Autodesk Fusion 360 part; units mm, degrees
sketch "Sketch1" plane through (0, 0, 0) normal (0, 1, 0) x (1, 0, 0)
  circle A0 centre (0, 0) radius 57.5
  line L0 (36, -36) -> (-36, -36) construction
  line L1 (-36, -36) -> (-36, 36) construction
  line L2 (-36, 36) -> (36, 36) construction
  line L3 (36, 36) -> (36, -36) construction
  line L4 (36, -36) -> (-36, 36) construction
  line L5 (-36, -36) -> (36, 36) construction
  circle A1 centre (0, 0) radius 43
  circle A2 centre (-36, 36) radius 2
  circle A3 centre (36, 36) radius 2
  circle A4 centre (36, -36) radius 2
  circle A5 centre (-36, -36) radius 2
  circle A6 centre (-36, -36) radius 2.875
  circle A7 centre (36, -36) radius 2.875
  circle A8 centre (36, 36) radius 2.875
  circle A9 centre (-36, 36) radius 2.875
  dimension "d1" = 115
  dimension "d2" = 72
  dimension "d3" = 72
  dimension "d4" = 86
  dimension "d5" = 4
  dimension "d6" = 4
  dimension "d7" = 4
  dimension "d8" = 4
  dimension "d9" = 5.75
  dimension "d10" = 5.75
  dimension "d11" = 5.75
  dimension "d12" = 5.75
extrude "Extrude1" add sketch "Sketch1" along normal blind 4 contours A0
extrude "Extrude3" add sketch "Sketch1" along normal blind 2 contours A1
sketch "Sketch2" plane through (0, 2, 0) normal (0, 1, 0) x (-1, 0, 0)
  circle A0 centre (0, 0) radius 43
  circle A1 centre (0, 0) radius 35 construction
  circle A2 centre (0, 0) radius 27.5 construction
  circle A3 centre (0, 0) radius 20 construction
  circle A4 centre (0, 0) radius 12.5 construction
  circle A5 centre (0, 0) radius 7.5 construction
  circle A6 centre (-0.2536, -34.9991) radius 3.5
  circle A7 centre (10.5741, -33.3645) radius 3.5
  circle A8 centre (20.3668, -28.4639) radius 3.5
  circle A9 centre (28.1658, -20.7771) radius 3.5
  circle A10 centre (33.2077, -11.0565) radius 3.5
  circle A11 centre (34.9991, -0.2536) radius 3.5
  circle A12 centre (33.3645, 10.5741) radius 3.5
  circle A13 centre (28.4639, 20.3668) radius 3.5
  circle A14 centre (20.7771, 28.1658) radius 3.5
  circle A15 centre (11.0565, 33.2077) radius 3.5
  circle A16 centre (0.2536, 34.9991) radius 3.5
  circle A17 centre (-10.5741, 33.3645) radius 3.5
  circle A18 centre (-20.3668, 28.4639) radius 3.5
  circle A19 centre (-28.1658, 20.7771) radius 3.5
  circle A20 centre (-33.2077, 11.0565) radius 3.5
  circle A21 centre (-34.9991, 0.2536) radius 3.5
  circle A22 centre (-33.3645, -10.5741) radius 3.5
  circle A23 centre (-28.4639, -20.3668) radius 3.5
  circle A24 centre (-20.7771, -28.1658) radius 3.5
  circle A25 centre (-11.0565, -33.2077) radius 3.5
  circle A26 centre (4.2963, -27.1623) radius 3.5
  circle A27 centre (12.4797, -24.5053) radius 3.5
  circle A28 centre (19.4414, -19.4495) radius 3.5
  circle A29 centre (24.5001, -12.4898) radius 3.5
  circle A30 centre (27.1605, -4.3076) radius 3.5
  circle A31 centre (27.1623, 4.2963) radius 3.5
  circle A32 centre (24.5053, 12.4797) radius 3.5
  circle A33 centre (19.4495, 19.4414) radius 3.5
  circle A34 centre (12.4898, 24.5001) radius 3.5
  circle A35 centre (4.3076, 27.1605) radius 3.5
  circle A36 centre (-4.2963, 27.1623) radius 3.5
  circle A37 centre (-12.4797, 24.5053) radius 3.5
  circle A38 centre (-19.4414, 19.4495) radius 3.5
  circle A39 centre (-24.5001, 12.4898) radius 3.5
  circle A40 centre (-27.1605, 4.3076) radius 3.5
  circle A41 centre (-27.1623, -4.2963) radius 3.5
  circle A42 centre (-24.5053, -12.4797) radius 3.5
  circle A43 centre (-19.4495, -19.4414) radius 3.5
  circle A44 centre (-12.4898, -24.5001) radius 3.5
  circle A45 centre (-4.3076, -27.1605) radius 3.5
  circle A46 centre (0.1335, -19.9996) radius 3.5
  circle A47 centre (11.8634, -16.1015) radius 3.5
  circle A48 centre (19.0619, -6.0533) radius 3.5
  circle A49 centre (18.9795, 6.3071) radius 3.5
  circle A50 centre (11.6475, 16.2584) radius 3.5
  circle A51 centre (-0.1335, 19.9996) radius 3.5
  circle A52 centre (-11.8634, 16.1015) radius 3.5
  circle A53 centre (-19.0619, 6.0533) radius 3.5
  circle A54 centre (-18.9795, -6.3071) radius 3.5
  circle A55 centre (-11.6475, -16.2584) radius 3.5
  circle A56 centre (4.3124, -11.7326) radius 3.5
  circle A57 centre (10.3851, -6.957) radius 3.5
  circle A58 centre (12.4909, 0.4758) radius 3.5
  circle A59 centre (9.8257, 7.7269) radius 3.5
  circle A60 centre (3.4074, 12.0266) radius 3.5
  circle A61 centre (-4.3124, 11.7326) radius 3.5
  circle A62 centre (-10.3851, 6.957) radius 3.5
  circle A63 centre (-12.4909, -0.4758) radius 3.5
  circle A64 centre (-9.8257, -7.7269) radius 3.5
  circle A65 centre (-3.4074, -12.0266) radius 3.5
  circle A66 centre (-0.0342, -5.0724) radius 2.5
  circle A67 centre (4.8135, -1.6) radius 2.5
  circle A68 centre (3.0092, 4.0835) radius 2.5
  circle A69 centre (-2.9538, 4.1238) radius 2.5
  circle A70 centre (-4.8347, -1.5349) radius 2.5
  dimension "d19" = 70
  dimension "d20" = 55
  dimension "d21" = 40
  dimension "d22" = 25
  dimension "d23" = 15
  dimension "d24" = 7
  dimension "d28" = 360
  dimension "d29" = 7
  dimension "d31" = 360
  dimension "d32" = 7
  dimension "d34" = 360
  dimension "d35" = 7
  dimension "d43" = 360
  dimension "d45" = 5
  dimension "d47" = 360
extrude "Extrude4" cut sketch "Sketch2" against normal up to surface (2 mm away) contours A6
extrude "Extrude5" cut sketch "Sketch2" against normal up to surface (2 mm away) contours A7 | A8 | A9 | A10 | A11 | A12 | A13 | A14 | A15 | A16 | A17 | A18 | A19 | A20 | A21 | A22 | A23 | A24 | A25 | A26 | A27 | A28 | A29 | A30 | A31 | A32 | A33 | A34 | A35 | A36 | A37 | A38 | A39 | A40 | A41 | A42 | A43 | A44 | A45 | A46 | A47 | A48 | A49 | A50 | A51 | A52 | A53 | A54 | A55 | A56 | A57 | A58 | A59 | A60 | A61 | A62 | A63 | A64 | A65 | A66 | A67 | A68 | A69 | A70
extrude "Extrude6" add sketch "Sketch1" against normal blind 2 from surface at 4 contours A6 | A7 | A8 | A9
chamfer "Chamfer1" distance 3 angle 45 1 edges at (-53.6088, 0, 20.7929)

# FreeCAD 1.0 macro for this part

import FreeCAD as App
import Part
import Sketcher


def edges_at(feature, points):
    """Names of the edges that pass closest to the given points."""
    edges = feature.Shape.Edges
    near = lambda p: min(range(len(edges)), key=lambda i: edges[i].distToShape(Part.Vertex(*p))[0])
    return sorted({f"Edge{near(p) + 1}" for p in points})

doc = App.newDocument("Part")
body = doc.addObject("PartDesign::Body", "Body")

# Sketch on XZ plane
sketch1 = body.newObject("Sketcher::SketchObject", "Sketch")
sketch1.AttachmentSupport = (doc.getObject("XZ_Plane"), [""])
sketch1.MapMode = "FlatFace"
sketch1.addGeometry(Part.Circle(App.Vector(0, 0, 0), App.Vector(0, 0, 1), 57.5), False)
sketch1.addGeometry(Part.Circle(App.Vector(-36, 36, 0), App.Vector(0, 0, 1), 2.875), False)
sketch1.addGeometry(Part.Circle(App.Vector(36, 36, 0), App.Vector(0, 0, 1), 2.875), False)
sketch1.addGeometry(Part.Circle(App.Vector(-36, -36, 0), App.Vector(0, 0, 1), 2.875), False)
sketch1.addGeometry(Part.Circle(App.Vector(0, 0, 0), App.Vector(0, 0, 1), 43), False)
sketch1.addGeometry(Part.Circle(App.Vector(36, -36, 0), App.Vector(0, 0, 1), 2.875), False)
sketch1.addConstraint(Sketcher.Constraint("Coincident", 0, 3, -1, 1))
sketch1.addConstraint(Sketcher.Constraint("Coincident", 4, 3, -1, 1))
sketch1.addConstraint(Sketcher.Constraint("Equal", 1, 2))
sketch1.addConstraint(Sketcher.Constraint("Equal", 2, 3))
sketch1.addConstraint(Sketcher.Constraint("Equal", 3, 5))
sketch1.addConstraint(Sketcher.Constraint("Symmetric", 2, 3, 3, 3, -1, 1))
sketch1.addConstraint(Sketcher.Constraint("Symmetric", 1, 3, 5, 3, -1, 1))
sketch1.addConstraint(Sketcher.Constraint("Symmetric", 1, 3, 2, 3, -2))
sketch1.addConstraint(Sketcher.Constraint("Diameter", 0, 115.0))
sketch1.addConstraint(Sketcher.Constraint("Diameter", 4, 86.0))
sketch1.addConstraint(Sketcher.Constraint("Diameter", 1, 5.75))
sketch1.addConstraint(Sketcher.Constraint("DistanceX", 1, 3, 2, 3, 72.0))
sketch1.addConstraint(Sketcher.Constraint("DistanceY", 3, 3, 1, 3, 72.0))
pad1 = body.newObject("PartDesign::Pad", "Pad")
pad1.Profile = sketch1
pad1.Length = 4
pad1.Reversed = True

# Sketch on XZ plane
sketch2 = body.newObject("Sketcher::SketchObject", "Sketch001")
sketch2.AttachmentSupport = (doc.getObject("XZ_Plane"), [""])
sketch2.MapMode = "FlatFace"
sketch2.addGeometry(Part.Circle(App.Vector(0, 0, 0), App.Vector(0, 0, 1), 43), False)
sketch2.addConstraint(Sketcher.Constraint("Coincident", 0, 3, -1, 1))
sketch2.addConstraint(Sketcher.Constraint("Diameter", 0, 86.0))
pad2 = body.newObject("PartDesign::Pad", "Pad001")
pad2.Profile = sketch2
pad2.Length = 2
pad2.Reversed = True

# Sketch on XZ plane
sketch3 = body.newObject("Sketcher::SketchObject", "Sketch002")
sketch3.AttachmentSupport = (doc.getObject("XZ_Plane"), [""])
sketch3.MapMode = "FlatFace"
sketch3.AttachmentOffset = App.Placement(App.Vector(0, 0, -2), App.Rotation())
sketch3.addGeometry(Part.Circle(App.Vector(0.2536, -34.9991, 0), App.Vector(0, 0, 1), 3.5), False)
sketch3.addConstraint(Sketcher.Constraint("Diameter", 0, 7.0))
sketch3.addConstraint(Sketcher.Constraint("DistanceY", 0, 3, -1, 1, 34.999))
sketch3.addConstraint(Sketcher.Constraint("DistanceX", -1, 1, 0, 3, 0.2536))
pocket1 = body.newObject("PartDesign::Pocket", "Pocket")
pocket1.Profile = sketch3
pocket1.Length = 2
pocket1.Reversed = True

# Sketch on XZ plane
sketch4 = body.newObject("Sketcher::SketchObject", "Sketch003")
sketch4.AttachmentSupport = (doc.getObject("XZ_Plane"), [""])
sketch4.MapMode = "FlatFace"
sketch4.AttachmentOffset = App.Placement(App.Vector(0, 0, -2), App.Rotation())
sketch4.addGeometry(Part.Circle(App.Vector(-10.5741, -33.3645, 0), App.Vector(0, 0, 1), 3.5), False)
sketch4.addGeometry(Part.Circle(App.Vector(-20.3668, -28.4639, 0), App.Vector(0, 0, 1), 3.5), False)
sketch4.addGeometry(Part.Circle(App.Vector(-28.1658, -20.7771, 0), App.Vector(0, 0, 1), 3.5), False)
sketch4.addGeometry(Part.Circle(App.Vector(-33.2077, -11.0565, 0), App.Vector(0, 0, 1), 3.5), False)
sketch4.addGeometry(Part.Circle(App.Vector(-34.9991, -0.2536, 0), App.Vector(0, 0, 1), 3.5), False)
sketch4.addGeometry(Part.Circle(App.Vector(-33.3645, 10.5741, 0), App.Vector(0, 0, 1), 3.5), False)
sketch4.addGeometry(Part.Circle(App.Vector(-28.4639, 20.3668, 0), App.Vector(0, 0, 1), 3.5), False)
sketch4.addGeometry(Part.Circle(App.Vector(-20.7771, 28.1658, 0), App.Vector(0, 0, 1), 3.5), False)
sketch4.addGeometry(Part.Circle(App.Vector(-11.0565, 33.2077, 0), App.Vector(0, 0, 1), 3.5), False)
sketch4.addGeometry(Part.Circle(App.Vector(-0.2536, 34.9991, 0), App.Vector(0, 0, 1), 3.5), False)
sketch4.addGeometry(Part.Circle(App.Vector(10.5741, 33.3645, 0), App.Vector(0, 0, 1), 3.5), False)
sketch4.addGeometry(Part.Circle(App.Vector(20.3668, 28.4639, 0), App.Vector(0, 0, 1), 3.5), False)
sketch4.addGeometry(Part.Circle(App.Vector(28.1658, 20.7771, 0), App.Vector(0, 0, 1), 3.5), False)
sketch4.addGeometry(Part.Circle(App.Vector(33.2077, 11.0565, 0), App.Vector(0, 0, 1), 3.5), False)
sketch4.addGeometry(Part.Circle(App.Vector(34.9991, 0.2536, 0), App.Vector(0, 0, 1), 3.5), False)
sketch4.addGeometry(Part.Circle(App.Vector(33.3645, -10.5741, 0), App.Vector(0, 0, 1), 3.5), False)
sketch4.addGeometry(Part.Circle(App.Vector(28.4639, -20.3668, 0), App.Vector(0, 0, 1), 3.5), False)
sketch4.addGeometry(Part.Circle(App.Vector(20.7771, -28.1658, 0), App.Vector(0, 0, 1), 3.5), False)
sketch4.addGeometry(Part.Circle(App.Vector(11.0565, -33.2077, 0), App.Vector(0, 0, 1), 3.5), False)
sketch4.addGeometry(Part.Circle(App.Vector(-4.2963, -27.1623, 0), App.Vector(0, 0, 1), 3.5), False)
sketch4.addGeometry(Part.Circle(App.Vector(-12.4797, -24.5053, 0), App.Vector(0, 0, 1), 3.5), False)
sketch4.addGeometry(Part.Circle(App.Vector(-19.4414, -19.4495, 0), App.Vector(0, 0, 1), 3.5), False)
sketch4.addGeometry(Part.Circle(App.Vector(-24.5001, -12.4898, 0), App.Vector(0, 0, 1), 3.5), False)
sketch4.addGeometry(Part.Circle(App.Vector(-27.1605, -4.3076, 0), App.Vector(0, 0, 1), 3.5), False)
sketch4.addGeometry(Part.Circle(App.Vector(-27.1623, 4.2963, 0), App.Vector(0, 0, 1), 3.5), False)
sketch4.addGeometry(Part.Circle(App.Vector(-24.5053, 12.4797, 0), App.Vector(0, 0, 1), 3.5), False)
sketch4.addGeometry(Part.Circle(App.Vector(-19.4495, 19.4414, 0), App.Vector(0, 0, 1), 3.5), False)
sketch4.addGeometry(Part.Circle(App.Vector(-12.4898, 24.5001, 0), App.Vector(0, 0, 1), 3.5), False)
sketch4.addGeometry(Part.Circle(App.Vector(-4.3076, 27.1605, 0), App.Vector(0, 0, 1), 3.5), False)
sketch4.addGeometry(Part.Circle(App.Vector(4.2963, 27.1623, 0), App.Vector(0, 0, 1), 3.5), False)
sketch4.addGeometry(Part.Circle(App.Vector(12.4797, 24.5053, 0), App.Vector(0, 0, 1), 3.5), False)
sketch4.addGeometry(Part.Circle(App.Vector(19.4414, 19.4495, 0), App.Vector(0, 0, 1), 3.5), False)
sketch4.addGeometry(Part.Circle(App.Vector(24.5001, 12.4898, 0), App.Vector(0, 0, 1), 3.5), False)
sketch4.addGeometry(Part.Circle(App.Vector(27.1605, 4.3076, 0), App.Vector(0, 0, 1), 3.5), False)
sketch4.addGeometry(Part.Circle(App.Vector(27.1623, -4.2963, 0), App.Vector(0, 0, 1), 3.5), False)
sketch4.addGeometry(Part.Circle(App.Vector(24.5053, -12.4797, 0), App.Vector(0, 0, 1), 3.5), False)
sketch4.addGeometry(Part.Circle(App.Vector(19.4495, -19.4414, 0), App.Vector(0, 0, 1), 3.5), False)
sketch4.addGeometry(Part.Circle(App.Vector(12.4898, -24.5001, 0), App.Vector(0, 0, 1), 3.5), False)
sketch4.addGeometry(Part.Circle(App.Vector(4.3076, -27.1605, 0), App.Vector(0, 0, 1), 3.5), False)
sketch4.addGeometry(Part.Circle(App.Vector(-0.1335, -19.9996, 0), App.Vector(0, 0, 1), 3.5), False)
sketch4.addGeometry(Part.Circle(App.Vector(-11.8634, -16.1015, 0), App.Vector(0, 0, 1), 3.5), False)
sketch4.addGeometry(Part.Circle(App.Vector(-19.0619, -6.0533, 0), App.Vector(0, 0, 1), 3.5), False)
sketch4.addGeometry(Part.Circle(App.Vector(-18.9795, 6.3071, 0), App.Vector(0, 0, 1), 3.5), False)
sketch4.addGeometry(Part.Circle(App.Vector(-11.6475, 16.2584, 0), App.Vector(0, 0, 1), 3.5), False)
sketch4.addGeometry(Part.Circle(App.Vector(0.1335, 19.9996, 0), App.Vector(0, 0, 1), 3.5), False)
sketch4.addGeometry(Part.Circle(App.Vector(11.8634, 16.1015, 0), App.Vector(0, 0, 1), 3.5), False)
sketch4.addGeometry(Part.Circle(App.Vector(19.0619, 6.0533, 0), App.Vector(0, 0, 1), 3.5), False)
sketch4.addGeometry(Part.Circle(App.Vector(18.9795, -6.3071, 0), App.Vector(0, 0, 1), 3.5), False)
sketch4.addGeometry(Part.Circle(App.Vector(11.6475, -16.2584, 0), App.Vector(0, 0, 1), 3.5), False)
sketch4.addGeometry(Part.Circle(App.Vector(-4.3124, -11.7326, 0), App.Vector(0, 0, 1), 3.5), False)
sketch4.addGeometry(Part.Circle(App.Vector(-10.3851, -6.957, 0), App.Vector(0, 0, 1), 3.5), False)
sketch4.addGeometry(Part.Circle(App.Vector(-12.4909, 0.4758, 0), App.Vector(0, 0, 1), 3.5), False)
sketch4.addGeometry(Part.Circle(App.Vector(-9.8257, 7.7269, 0), App.Vector(0, 0, 1), 3.5), False)
sketch4.addGeometry(Part.Circle(App.Vector(-3.4074, 12.0266, 0), App.Vector(0, 0, 1), 3.5), False)
sketch4.addGeometry(Part.Circle(App.Vector(4.3124, 11.7326, 0), App.Vector(0, 0, 1), 3.5), False)
sketch4.addGeometry(Part.Circle(App.Vector(10.3851, 6.957, 0), App.Vector(0, 0, 1), 3.5), False)
sketch4.addGeometry(Part.Circle(App.Vector(12.4909, -0.4758, 0), App.Vector(0, 0, 1), 3.5), False)
sketch4.addGeometry(Part.Circle(App.Vector(9.8257, -7.7269, 0), App.Vector(0, 0, 1), 3.5), False)
sketch4.addGeometry(Part.Circle(App.Vector(3.4074, -12.0266, 0), App.Vector(0, 0, 1), 3.5), False)
sketch4.addGeometry(Part.Circle(App.Vector(0.0342, -5.0724, 0), App.Vector(0, 0, 1), 2.5), False)
sketch4.addGeometry(Part.Circle(App.Vector(-4.8135, -1.6, 0), App.Vector(0, 0, 1), 2.5), False)
sketch4.addGeometry(Part.Circle(App.Vector(-3.0092, 4.0835, 0), App.Vector(0, 0, 1), 2.5), False)
sketch4.addGeometry(Part.Circle(App.Vector(2.9538, 4.1238, 0), App.Vector(0, 0, 1), 2.5), False)
sketch4.addGeometry(Part.Circle(App.Vector(4.8347, -1.5349, 0), App.Vector(0, 0, 1), 2.5), False)
sketch4.addConstraint(Sketcher.Constraint("Equal", 0, 1))
sketch4.addConstraint(Sketcher.Constraint("Equal", 1, 2))
sketch4.addConstraint(Sketcher.Constraint("Equal", 2, 3))
sketch4.addConstraint(Sketcher.Constraint("Equal", 3, 4))
sketch4.addConstraint(Sketcher.Constraint("Equal", 4, 5))
sketch4.addConstraint(Sketcher.Constraint("Equal", 5, 6))
sketch4.addConstraint(Sketcher.Constraint("Equal", 6, 7))
sketch4.addConstraint(Sketcher.Constraint("Equal", 7, 8))
sketch4.addConstraint(Sketcher.Constraint("Equal", 8, 9))
sketch4.addConstraint(Sketcher.Constraint("Equal", 9, 10))
sketch4.addConstraint(Sketcher.Constraint("Equal", 10, 11))
sketch4.addConstraint(Sketcher.Constraint("Equal", 11, 12))
sketch4.addConstraint(Sketcher.Constraint("Equal", 12, 13))
sketch4.addConstraint(Sketcher.Constraint("Equal", 13, 14))
sketch4.addConstraint(Sketcher.Constraint("Equal", 14, 15))
sketch4.addConstraint(Sketcher.Constraint("Equal", 15, 16))
sketch4.addConstraint(Sketcher.Constraint("Equal", 16, 17))
sketch4.addConstraint(Sketcher.Constraint("Equal", 17, 18))
sketch4.addConstraint(Sketcher.Constraint("Equal", 18, 19))
sketch4.addConstraint(Sketcher.Constraint("Equal", 19, 20))
sketch4.addConstraint(Sketcher.Constraint("Equal", 20, 21))
sketch4.addConstraint(Sketcher.Constraint("Equal", 21, 22))
sketch4.addConstraint(Sketcher.Constraint("Equal", 22, 23))
sketch4.addConstraint(Sketcher.Constraint("Equal", 23, 24))
sketch4.addConstraint(Sketcher.Constraint("Equal", 24, 25))
sketch4.addConstraint(Sketcher.Constraint("Equal", 25, 26))
sketch4.addConstraint(Sketcher.Constraint("Equal", 26, 27))
sketch4.addConstraint(Sketcher.Constraint("Equal", 27, 28))
sketch4.addConstraint(Sketcher.Constraint("Equal", 28, 29))
sketch4.addConstraint(Sketcher.Constraint("Equal", 29, 30))
sketch4.addConstraint(Sketcher.Constraint("Equal", 30, 31))
sketch4.addConstraint(Sketcher.Constraint("Equal", 31, 32))
sketch4.addConstraint(Sketcher.Constraint("Equal", 32, 33))
sketch4.addConstraint(Sketcher.Constraint("Equal", 33, 34))
sketch4.addConstraint(Sketcher.Constraint("Equal", 34, 35))
sketch4.addConstraint(Sketcher.Constraint("Equal", 35, 36))
sketch4.addConstraint(Sketcher.Constraint("Equal", 36, 37))
sketch4.addConstraint(Sketcher.Constraint("Equal", 37, 38))
sketch4.addConstraint(Sketcher.Constraint("Equal", 38, 39))
sketch4.addConstraint(Sketcher.Constraint("Equal", 39, 40))
sketch4.addConstraint(Sketcher.Constraint("Equal", 40, 41))
sketch4.addConstraint(Sketcher.Constraint("Equal", 41, 42))
sketch4.addConstraint(Sketcher.Constraint("Equal", 42, 43))
sketch4.addConstraint(Sketcher.Constraint("Equal", 43, 44))
sketch4.addConstraint(Sketcher.Constraint("Equal", 44, 45))
sketch4.addConstraint(Sketcher.Constraint("Equal", 45, 46))
sketch4.addConstraint(Sketcher.Constraint("Equal", 46, 47))
sketch4.addConstraint(Sketcher.Constraint("Equal", 47, 48))
sketch4.addConstraint(Sketcher.Constraint("Equal", 48, 49))
sketch4.addConstraint(Sketcher.Constraint("Equal", 49, 50))
sketch4.addConstraint(Sketcher.Constraint("Equal", 50, 51))
sketch4.addConstraint(Sketcher.Constraint("Equal", 51, 52))
sketch4.addConstraint(Sketcher.Constraint("Equal", 52, 53))
sketch4.addConstraint(Sketcher.Constraint("Equal", 53, 54))
sketch4.addConstraint(Sketcher.Constraint("Equal", 54, 55))
sketch4.addConstraint(Sketcher.Constraint("Equal", 55, 56))
sketch4.addConstraint(Sketcher.Constraint("Equal", 56, 57))
sketch4.addConstraint(Sketcher.Constraint("Equal", 57, 58))
sketch4.addConstraint(Sketcher.Constraint("Equal", 59, 60))
sketch4.addConstraint(Sketcher.Constraint("Equal", 60, 61))
sketch4.addConstraint(Sketcher.Constraint("Equal", 61, 62))
sketch4.addConstraint(Sketcher.Constraint("Equal", 62, 63))
sketch4.addConstraint(Sketcher.Constraint("Symmetric", 0, 3, 10, 3, -1, 1))
sketch4.addConstraint(Sketcher.Constraint("Symmetric", 1, 3, 11, 3, -1, 1))
sketch4.addConstraint(Sketcher.Constraint("Symmetric", 2, 3, 12, 3, -1, 1))
sketch4.addConstraint(Sketcher.Constraint("Symmetric", 3, 3, 13, 3, -1, 1))
sketch4.addConstraint(Sketcher.Constraint("Symmetric", 4, 3, 14, 3, -1, 1))
sketch4.addConstraint(Sketcher.Constraint("Symmetric", 5, 3, 15, 3, -1, 1))
sketch4.addConstraint(Sketcher.Constraint("Symmetric", 6, 3, 16, 3, -1, 1))
sketch4.addConstraint(Sketcher.Constraint("Symmetric", 7, 3, 17, 3, -1, 1))
sketch4.addConstraint(Sketcher.Constraint("Symmetric", 8, 3, 18, 3, -1, 1))
sketch4.addConstraint(Sketcher.Constraint("Symmetric", 19, 3, 29, 3, -1, 1))
sketch4.addConstraint(Sketcher.Constraint("Symmetric", 20, 3, 30, 3, -1, 1))
sketch4.addConstraint(Sketcher.Constraint("Symmetric", 21, 3, 31, 3, -1, 1))
sketch4.addConstraint(Sketcher.Constraint("Symmetric", 22, 3, 32, 3, -1, 1))
sketch4.addConstraint(Sketcher.Constraint("Symmetric", 23, 3, 33, 3, -1, 1))
sketch4.addConstraint(Sketcher.Constraint("Symmetric", 24, 3, 34, 3, -1, 1))
sketch4.addConstraint(Sketcher.Constraint("Symmetric", 25, 3, 35, 3, -1, 1))
sketch4.addConstraint(Sketcher.Constraint("Symmetric", 26, 3, 36, 3, -1, 1))
sketch4.addConstraint(Sketcher.Constraint("Symmetric", 27, 3, 37, 3, -1, 1))
sketch4.addConstraint(Sketcher.Constraint("Symmetric", 28, 3, 38, 3, -1, 1))
sketch4.addConstraint(Sketcher.Constraint("Symmetric", 39, 3, 44, 3, -1, 1))
sketch4.addConstraint(Sketcher.Constraint("Symmetric", 40, 3, 45, 3, -1, 1))
sketch4.addConstraint(Sketcher.Constraint("Symmetric", 41, 3, 46, 3, -1, 1))
sketch4.addConstraint(Sketcher.Constraint("Symmetric", 42, 3, 47, 3, -1, 1))
sketch4.addConstraint(Sketcher.Constraint("Symmetric", 43, 3, 48, 3, -1, 1))
sketch4.addConstraint(Sketcher.Constraint("Symmetric", 49, 3, 54, 3, -1, 1))
sketch4.addConstraint(Sketcher.Constraint("Symmetric", 50, 3, 55, 3, -1, 1))
sketch4.addConstraint(Sketcher.Constraint("Symmetric", 51, 3, 56, 3, -1, 1))
sketch4.addConstraint(Sketcher.Constraint("Symmetric", 52, 3, 57, 3, -1, 1))
sketch4.addConstraint(Sketcher.Constraint("Symmetric", 53, 3, 58, 3, -1, 1))
sketch4.addConstraint(Sketcher.Constraint("Diameter", 0, 7.0))
sketch4.addConstraint(Sketcher.Constraint("Diameter", 59, 5.0))
sketch4.addConstraint(Sketcher.Constraint("DistanceX", 22, 3, -1, 1, 24.5))
sketch4.addConstraint(Sketcher.Constraint("DistanceY", -1, 1, 27, 3, 24.5))
sketch4.addConstraint(Sketcher.Constraint("DistanceY", 60, 3, -1, 1, 1.6))
sketch4.addConstraint(Sketcher.Constraint("DistanceX", 0, 3, -1, 1, 10.574))
sketch4.addConstraint(Sketcher.Constraint("DistanceY", 1, 3, -1, 1, 28.464))
sketch4.addConstraint(Sketcher.Constraint("DistanceY", 2, 3, -1, 1, 20.777))
sketch4.addConstraint(Sketcher.Constraint("DistanceX", 4, 3, -1, 1, 34.999))
sketch4.addConstraint(Sketcher.Constraint("DistanceY", -1, 1, 5, 3, 10.574))
sketch4.addConstraint(Sketcher.Constraint("DistanceX", 6, 3, -1, 1, 28.464))
sketch4.addConstraint(Sketcher.Constraint("DistanceX", 7, 3, -1, 1, 20.777))
sketch4.addConstraint(Sketcher.Constraint("DistanceY", -1, 1, 9, 3, 34.999))
sketch4.addConstraint(Sketcher.Constraint("DistanceX", 41, 3, -1, 1, 19.062))
sketch4.addConstraint(Sketcher.Constraint("DistanceY", -1, 1, 42, 3, 6.307))
sketch4.addConstraint(Sketcher.Constraint("DistanceX", 50, 3, -1, 1, 10.385))
sketch4.addConstraint(Sketcher.Constraint("DistanceY", 50, 3, -1, 1, 6.957))
sketch4.addConstraint(Sketcher.Constraint("DistanceX", 51, 3, -1, 1, 12.491))
sketch4.addConstraint(Sketcher.Constraint("DistanceY", -1, 1, 52, 3, 7.727))
sketch4.addConstraint(Sketcher.Constraint("DistanceY", 63, 3, -1, 1, 1.535))
sketch4.addConstraint(Sketcher.Constraint("DistanceY", 0, 3, -1, 1, 33.3645))
sketch4.addConstraint(Sketcher.Constraint("DistanceX", 1, 3, -1, 1, 20.3668))
sketch4.addConstraint(Sketcher.Constraint("DistanceX", 2, 3, -1, 1, 28.1658))
sketch4.addConstraint(Sketcher.Constraint("DistanceX", 3, 3, -1, 1, 33.2077))
sketch4.addConstraint(Sketcher.Constraint("DistanceY", 3, 3, -1, 1, 11.0565))
sketch4.addConstraint(Sketcher.Constraint("DistanceY", 4, 3, -1, 1, 0.2536))
sketch4.addConstraint(Sketcher.Constraint("DistanceX", 5, 3, -1, 1, 33.3645))
sketch4.addConstraint(Sketcher.Constraint("DistanceY", -1, 1, 6, 3, 20.3668))
sketch4.addConstraint(Sketcher.Constraint("DistanceY", -1, 1, 7, 3, 28.1658))
sketch4.addConstraint(Sketcher.Constraint("DistanceX", 8, 3, -1, 1, 11.0565))
sketch4.addConstraint(Sketcher.Constraint("DistanceY", -1, 1, 8, 3, 33.2077))
sketch4.addConstraint(Sketcher.Constraint("DistanceX", 9, 3, -1, 1, 0.2536))
sketch4.addConstraint(Sketcher.Constraint("DistanceX", 19, 3, -1, 1, 4.2963))
sketch4.addConstraint(Sketcher.Constraint("DistanceY", 19, 3, -1, 1, 27.1623))
sketch4.addConstraint(Sketcher.Constraint("DistanceX", 20, 3, -1, 1, 12.4797))
sketch4.addConstraint(Sketcher.Constraint("DistanceY", 20, 3, -1, 1, 24.5053))
sketch4.addConstraint(Sketcher.Constraint("DistanceX", 21, 3, -1, 1, 19.4414))
sketch4.addConstraint(Sketcher.Constraint("DistanceY", 21, 3, -1, 1, 19.4495))
sketch4.addConstraint(Sketcher.Constraint("DistanceY", 22, 3, -1, 1, 12.4898))
sketch4.addConstraint(Sketcher.Constraint("DistanceX", 23, 3, -1, 1, 27.1605))
sketch4.addConstraint(Sketcher.Constraint("DistanceY", 23, 3, -1, 1, 4.3076))
sketch4.addConstraint(Sketcher.Constraint("DistanceX", 24, 3, -1, 1, 27.1623))
sketch4.addConstraint(Sketcher.Constraint("DistanceY", -1, 1, 24, 3, 4.2963))
sketch4.addConstraint(Sketcher.Constraint("DistanceX", 25, 3, -1, 1, 24.5053))
sketch4.addConstraint(Sketcher.Constraint("DistanceY", -1, 1, 25, 3, 12.4797))
sketch4.addConstraint(Sketcher.Constraint("DistanceX", 26, 3, -1, 1, 19.4495))
sketch4.addConstraint(Sketcher.Constraint("DistanceY", -1, 1, 26, 3, 19.4414))
sketch4.addConstraint(Sketcher.Constraint("DistanceX", 27, 3, -1, 1, 12.4898))
sketch4.addConstraint(Sketcher.Constraint("DistanceX", 28, 3, -1, 1, 4.3076))
sketch4.addConstraint(Sketcher.Constraint("DistanceY", -1, 1, 28, 3, 27.1605))
sketch4.addConstraint(Sketcher.Constraint("DistanceX", 39, 3, -1, 1, 0.1335))
sketch4.addConstraint(Sketcher.Constraint("DistanceY", 39, 3, -1, 1, 19.9996))
sketch4.addConstraint(Sketcher.Constraint("DistanceX", 40, 3, -1, 1, 11.8634))
sketch4.addConstraint(Sketcher.Constraint("DistanceY", 40, 3, -1, 1, 16.1015))
sketch4.addConstraint(Sketcher.Constraint("DistanceY", 41, 3, -1, 1, 6.0533))
sketch4.addConstraint(Sketcher.Constraint("DistanceX", 42, 3, -1, 1, 18.9795))
sketch4.addConstraint(Sketcher.Constraint("DistanceX", 43, 3, -1, 1, 11.6475))
sketch4.addConstraint(Sketcher.Constraint("DistanceY", -1, 1, 43, 3, 16.2584))
sketch4.addConstraint(Sketcher.Constraint("DistanceX", 49, 3, -1, 1, 4.3124))
sketch4.addConstraint(Sketcher.Constraint("DistanceY", 49, 3, -1, 1, 11.7326))
sketch4.addConstraint(Sketcher.Constraint("DistanceY", -1, 1, 51, 3, 0.4758))
sketch4.addConstraint(Sketcher.Constraint("DistanceX", 52, 3, -1, 1, 9.8257))
sketch4.addConstraint(Sketcher.Constraint("DistanceX", 53, 3, -1, 1, 3.4074))
sketch4.addConstraint(Sketcher.Constraint("DistanceY", -1, 1, 53, 3, 12.0266))
sketch4.addConstraint(Sketcher.Constraint("DistanceX", -1, 1, 59, 3, 0.0342))
sketch4.addConstraint(Sketcher.Constraint("DistanceY", 59, 3, -1, 1, 5.0724))
sketch4.addConstraint(Sketcher.Constraint("DistanceX", 60, 3, -1, 1, 4.8135))
sketch4.addConstraint(Sketcher.Constraint("DistanceX", 61, 3, -1, 1, 3.0092))
sketch4.addConstraint(Sketcher.Constraint("DistanceY", -1, 1, 61, 3, 4.0835))
sketch4.addConstraint(Sketcher.Constraint("DistanceX", -1, 1, 62, 3, 2.9538))
sketch4.addConstraint(Sketcher.Constraint("DistanceY", -1, 1, 62, 3, 4.1238))
sketch4.addConstraint(Sketcher.Constraint("DistanceX", -1, 1, 63, 3, 4.8347))
pocket2 = body.newObject("PartDesign::Pocket", "Pocket001")
pocket2.Profile = sketch4
pocket2.Length = 2
pocket2.Reversed = True

# Sketch on XZ plane
sketch5 = body.newObject("Sketcher::SketchObject", "Sketch004")
sketch5.AttachmentSupport = (doc.getObject("XZ_Plane"), [""])
sketch5.MapMode = "FlatFace"
sketch5.AttachmentOffset = App.Placement(App.Vector(0, 0, -4), App.Rotation())
sketch5.addGeometry(Part.Circle(App.Vector(-36, 36, 0), App.Vector(0, 0, 1), 2.875), False)
sketch5.addGeometry(Part.Circle(App.Vector(-36, 36, 0), App.Vector(0, 0, 1), 2), False)
sketch5.addGeometry(Part.Circle(App.Vector(36, 36, 0), App.Vector(0, 0, 1), 2.875), False)
sketch5.addGeometry(Part.Circle(App.Vector(36, 36, 0), App.Vector(0, 0, 1), 2), False)
sketch5.addGeometry(Part.Circle(App.Vector(36, -36, 0), App.Vector(0, 0, 1), 2.875), False)
sketch5.addGeometry(Part.Circle(App.Vector(36, -36, 0), App.Vector(0, 0, 1), 2), False)
sketch5.addGeometry(Part.Circle(App.Vector(-36, -36, 0), App.Vector(0, 0, 1), 2.875), False)
sketch5.addGeometry(Part.Circle(App.Vector(-36, -36, 0), App.Vector(0, 0, 1), 2), False)
sketch5.addConstraint(Sketcher.Constraint("Coincident", 1, 3, 0, 3))
sketch5.addConstraint(Sketcher.Constraint("Coincident", 3, 3, 2, 3))
sketch5.addConstraint(Sketcher.Constraint("Coincident", 5, 3, 4, 3))
sketch5.addConstraint(Sketcher.Constraint("Coincident", 7, 3, 6, 3))
sketch5.addConstraint(Sketcher.Constraint("Equal", 0, 2))
sketch5.addConstraint(Sketcher.Constraint("Equal", 1, 3))
sketch5.addConstraint(Sketcher.Constraint("Equal", 2, 4))
sketch5.addConstraint(Sketcher.Constraint("Equal", 3, 5))
sketch5.addConstraint(Sketcher.Constraint("Equal", 4, 6))
sketch5.addConstraint(Sketcher.Constraint("Equal", 5, 7))
sketch5.addConstraint(Sketcher.Constraint("Symmetric", 0, 3, 4, 3, -1, 1))
sketch5.addConstraint(Sketcher.Constraint("Symmetric", 2, 3, 6, 3, -1, 1))
sketch5.addConstraint(Sketcher.Constraint("Symmetric", 0, 3, 2, 3, -2))
sketch5.addConstraint(Sketcher.Constraint("Diameter", 1, 4.0))
sketch5.addConstraint(Sketcher.Constraint("Diameter", 0, 5.75))
sketch5.addConstraint(Sketcher.Constraint("DistanceX", 0, 3, 2, 3, 72.0))
sketch5.addConstraint(Sketcher.Constraint("DistanceY", 4, 3, 2, 3, 72.0))
pad3 = body.newObject("PartDesign::Pad", "Pad002")
pad3.Profile = sketch5
pad3.Length = 2
doc.recompute()

chamfer = body.newObject("PartDesign::Chamfer", "Chamfer")
chamfer.Base = (pad3, edges_at(pad3, [(-53.609, 0, 20.793)]))
chamfer.Size = 3

doc.recompute()
